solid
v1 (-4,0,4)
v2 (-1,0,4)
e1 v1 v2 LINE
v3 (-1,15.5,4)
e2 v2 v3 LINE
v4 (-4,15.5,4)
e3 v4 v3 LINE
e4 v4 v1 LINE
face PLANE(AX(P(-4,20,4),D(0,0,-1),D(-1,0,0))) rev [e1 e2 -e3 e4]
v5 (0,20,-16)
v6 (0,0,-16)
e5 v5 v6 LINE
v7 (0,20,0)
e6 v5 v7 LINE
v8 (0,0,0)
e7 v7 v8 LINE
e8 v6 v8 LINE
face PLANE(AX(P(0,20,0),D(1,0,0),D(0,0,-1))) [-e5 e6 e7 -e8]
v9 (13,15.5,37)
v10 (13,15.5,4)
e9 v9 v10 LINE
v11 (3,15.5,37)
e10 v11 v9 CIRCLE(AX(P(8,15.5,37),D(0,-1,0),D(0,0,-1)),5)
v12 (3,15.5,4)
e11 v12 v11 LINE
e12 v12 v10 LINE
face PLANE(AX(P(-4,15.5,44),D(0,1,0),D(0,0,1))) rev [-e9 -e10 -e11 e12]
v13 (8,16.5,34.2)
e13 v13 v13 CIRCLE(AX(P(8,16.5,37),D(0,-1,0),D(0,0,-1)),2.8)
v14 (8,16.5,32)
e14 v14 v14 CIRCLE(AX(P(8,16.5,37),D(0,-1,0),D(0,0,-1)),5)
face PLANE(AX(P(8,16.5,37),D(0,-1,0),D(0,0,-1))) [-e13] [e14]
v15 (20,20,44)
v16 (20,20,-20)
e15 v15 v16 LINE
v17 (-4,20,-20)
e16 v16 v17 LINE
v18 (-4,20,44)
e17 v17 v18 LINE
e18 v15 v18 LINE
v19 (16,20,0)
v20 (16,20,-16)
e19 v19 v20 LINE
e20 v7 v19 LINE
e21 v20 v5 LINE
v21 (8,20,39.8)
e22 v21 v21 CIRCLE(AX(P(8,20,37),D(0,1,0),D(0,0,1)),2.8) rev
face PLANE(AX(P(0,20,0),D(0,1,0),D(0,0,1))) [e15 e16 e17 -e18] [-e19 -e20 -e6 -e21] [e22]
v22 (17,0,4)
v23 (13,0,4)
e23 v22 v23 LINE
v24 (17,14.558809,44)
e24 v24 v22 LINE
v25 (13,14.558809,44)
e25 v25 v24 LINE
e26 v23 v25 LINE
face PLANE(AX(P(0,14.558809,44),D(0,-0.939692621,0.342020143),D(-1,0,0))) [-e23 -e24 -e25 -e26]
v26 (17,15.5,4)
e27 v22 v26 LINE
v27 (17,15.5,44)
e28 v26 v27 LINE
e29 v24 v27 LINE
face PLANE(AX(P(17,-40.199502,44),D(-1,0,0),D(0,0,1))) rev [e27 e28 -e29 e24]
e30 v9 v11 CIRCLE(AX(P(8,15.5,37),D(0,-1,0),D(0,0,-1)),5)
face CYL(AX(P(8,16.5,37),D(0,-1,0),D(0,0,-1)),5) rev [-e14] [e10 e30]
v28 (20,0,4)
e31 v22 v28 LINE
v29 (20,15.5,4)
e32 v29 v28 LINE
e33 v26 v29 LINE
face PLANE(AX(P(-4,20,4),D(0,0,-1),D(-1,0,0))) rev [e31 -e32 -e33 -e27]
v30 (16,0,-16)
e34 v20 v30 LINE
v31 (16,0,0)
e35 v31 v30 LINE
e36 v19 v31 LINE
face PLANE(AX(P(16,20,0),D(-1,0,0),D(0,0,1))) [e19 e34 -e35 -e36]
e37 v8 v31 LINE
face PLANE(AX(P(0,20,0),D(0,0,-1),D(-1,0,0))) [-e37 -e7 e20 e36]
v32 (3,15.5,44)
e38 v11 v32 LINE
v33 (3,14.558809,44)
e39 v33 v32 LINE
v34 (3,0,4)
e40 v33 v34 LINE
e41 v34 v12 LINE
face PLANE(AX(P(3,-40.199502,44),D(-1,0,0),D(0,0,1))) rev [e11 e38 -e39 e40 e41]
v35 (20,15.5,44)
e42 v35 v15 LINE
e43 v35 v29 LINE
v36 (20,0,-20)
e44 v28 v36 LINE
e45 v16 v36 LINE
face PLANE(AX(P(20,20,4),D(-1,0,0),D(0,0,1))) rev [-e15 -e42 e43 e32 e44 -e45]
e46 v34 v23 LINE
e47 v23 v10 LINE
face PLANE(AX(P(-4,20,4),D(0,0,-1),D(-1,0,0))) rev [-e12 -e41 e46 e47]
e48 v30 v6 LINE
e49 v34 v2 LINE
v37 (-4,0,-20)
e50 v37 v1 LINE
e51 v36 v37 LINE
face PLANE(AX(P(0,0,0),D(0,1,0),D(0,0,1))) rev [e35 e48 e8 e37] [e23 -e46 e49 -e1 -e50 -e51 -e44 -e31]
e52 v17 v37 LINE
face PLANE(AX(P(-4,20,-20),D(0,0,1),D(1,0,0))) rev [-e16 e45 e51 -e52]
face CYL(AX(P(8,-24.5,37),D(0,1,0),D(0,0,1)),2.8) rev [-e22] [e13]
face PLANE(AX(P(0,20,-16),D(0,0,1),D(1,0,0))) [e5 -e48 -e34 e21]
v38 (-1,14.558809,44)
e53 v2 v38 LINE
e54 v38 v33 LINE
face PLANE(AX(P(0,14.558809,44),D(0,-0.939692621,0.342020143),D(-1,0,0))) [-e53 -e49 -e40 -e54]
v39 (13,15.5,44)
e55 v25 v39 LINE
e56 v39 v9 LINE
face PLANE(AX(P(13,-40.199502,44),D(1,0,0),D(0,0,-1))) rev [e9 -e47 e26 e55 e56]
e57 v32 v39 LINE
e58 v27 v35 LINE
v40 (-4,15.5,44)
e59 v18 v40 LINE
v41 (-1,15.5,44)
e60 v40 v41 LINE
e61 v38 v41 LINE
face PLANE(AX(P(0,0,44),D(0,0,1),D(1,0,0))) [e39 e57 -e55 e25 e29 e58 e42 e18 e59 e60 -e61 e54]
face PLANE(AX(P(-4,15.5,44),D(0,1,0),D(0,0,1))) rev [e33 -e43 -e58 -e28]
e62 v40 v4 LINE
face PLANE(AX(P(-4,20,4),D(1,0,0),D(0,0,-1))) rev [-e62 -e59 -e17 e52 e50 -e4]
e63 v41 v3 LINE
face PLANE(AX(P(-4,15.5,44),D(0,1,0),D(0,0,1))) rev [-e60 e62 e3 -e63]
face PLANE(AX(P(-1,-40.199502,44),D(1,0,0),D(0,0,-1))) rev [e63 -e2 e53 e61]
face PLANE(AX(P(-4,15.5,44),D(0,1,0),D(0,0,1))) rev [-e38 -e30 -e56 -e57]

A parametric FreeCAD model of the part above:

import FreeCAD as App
import Part
import Sketcher
from FreeCAD import Vector
Q = App.Units.Quantity


def edges_at(feature, points):
    """Names of the edges that pass closest to the given points."""
    edges = feature.Shape.Edges
    near = lambda p: min(range(len(edges)), key=lambda i: edges[i].distToShape(Part.Vertex(*p))[0])
    return sorted({f"Edge{near(p) + 1}" for p in points})


def add_polygon(sketch, points):
    """Adds a closed chain of lines whose ends are joined by coincident constraints."""
    first, n = sketch.GeometryCount, len(points)
    for a, b in zip(points, points[1:] + points[:1]):
        sketch.addGeometry(Part.LineSegment(App.Vector(*a, 0), App.Vector(*b, 0)), False)
    for i in range(n):
        sketch.addConstraint(Sketcher.Constraint("Coincident", first + i, 2, first + (i + 1) % n, 1))

doc = App.newDocument("Part")
body = doc.addObject("PartDesign::Body", "Body")

# Sketch on XZ plane
sketch1 = body.newObject("Sketcher::SketchObject", "Sketch")
sketch1.AttachmentSupport = (doc.getObject("XZ_Plane"), [""])
sketch1.MapMode = "FlatFace"
add_polygon(sketch1, [(-4, -20), (-4, 4), (20, 4), (20, -20)])  # lines 0-3
add_polygon(sketch1, [(16, 0), (0, 0), (0, -16), (16, -16)])  # lines 4-7
sketch1.addConstraint([
    Sketcher.Constraint("Vertical", 0),
    Sketcher.Constraint("Horizontal", 1),
    Sketcher.Constraint("Vertical", 2),
    Sketcher.Constraint("Horizontal", 3),
    Sketcher.Constraint("Horizontal", 4),
    Sketcher.Constraint("Vertical", 5),
    Sketcher.Constraint("Horizontal", 6),
    Sketcher.Constraint("Vertical", 7),
    Sketcher.Constraint("Coincident", 4, 2, -1, 1),
    Sketcher.Constraint("Equal", 3, 0),
    Sketcher.Constraint("Equal", 6, 5),
    Sketcher.Constraint("DistanceX", 1, 1, 1, 2, Q("24 mm")),
    Sketcher.Constraint("DistanceX", 4, 2, 4, 1, Q("16 mm")),
    Sketcher.Constraint("DistanceX", 0, 2, -1, 1, Q("4 mm")),
    Sketcher.Constraint("DistanceY", -1, 1, 0, 2, Q("4 mm")),
])
pad1 = body.newObject("PartDesign::Pad", "Pad")
pad1.Profile = sketch1
pad1.Length = 20
pad1.Reversed = True

# Sketch on XY plane
sketch2 = body.newObject("Sketcher::SketchObject", "Sketch001")
sketch2.AttachmentSupport = (doc.getObject("XY_Plane"), [""])
sketch2.MapMode = "FlatFace"
sketch2.AttachmentOffset = App.Placement(Vector(0, 0, 4), App.Rotation())
add_polygon(sketch2, [(-4, 20), (-4, 15.5), (20, 15.5), (20, 20)])  # lines 0-3
sketch2.addConstraint([
    Sketcher.Constraint("Vertical", 0),
    Sketcher.Constraint("Horizontal", 1),
    Sketcher.Constraint("Vertical", 2),
    Sketcher.Constraint("Horizontal", 3),
    Sketcher.Constraint("DistanceX", 1, 1, 1, 2, Q("24 mm")),
    Sketcher.Constraint("DistanceY", 0, 2, 0, 1, Q("4.5 mm")),
    Sketcher.Constraint("DistanceX", 0, 2, -1, 1, Q("4 mm")),
    Sketcher.Constraint("DistanceY", -1, 1, 2, 2, Q("20 mm")),
])
pad2 = body.newObject("PartDesign::Pad", "Pad001")
pad2.Profile = sketch2
pad2.Length = 40

# Sketch on XZ plane
sketch3 = body.newObject("Sketcher::SketchObject", "Sketch002")
sketch3.AttachmentSupport = (doc.getObject("XZ_Plane"), [""])
sketch3.MapMode = "FlatFace"
sketch3.AttachmentOffset = App.Placement(Vector(0, 0, -15.5), App.Rotation())
sketch3.addGeometry(Part.Circle(Vector(8, 37, 0), Vector(0, 0, 1), 2.8), False)
sketch3.addConstraint([
    Sketcher.Constraint("Diameter", 0, Q("5.6 mm")),
    Sketcher.Constraint("DistanceX", -1, 1, 0, 3, Q("8 mm")),
    Sketcher.Constraint("DistanceY", -1, 1, 0, 3, Q("37 mm")),
])
pocket1 = body.newObject("PartDesign::Pocket", "Pocket")
pocket1.Profile = sketch3
pocket1.Type = "ThroughAll"
pocket1.Midplane = True

# Sketch on XZ plane
sketch4 = body.newObject("Sketcher::SketchObject", "Sketch003")
sketch4.AttachmentSupport = (doc.getObject("XZ_Plane"), [""])
sketch4.MapMode = "FlatFace"
sketch4.AttachmentOffset = App.Placement(Vector(0, 0, -15.5), App.Rotation())
add_polygon(sketch4, [(3, 4), (3, 44), (-1, 44), (-1, 4)])  # lines 0-3
add_polygon(sketch4, [(17, 4), (17, 44), (13, 44), (13, 4)])  # lines 4-7
sketch4.addConstraint([
    Sketcher.Constraint("Vertical", 0),
    Sketcher.Constraint("Horizontal", 1),
    Sketcher.Constraint("Vertical", 2),
    Sketcher.Constraint("Horizontal", 3),
    Sketcher.Constraint("Vertical", 4),
    Sketcher.Constraint("Horizontal", 5),
    Sketcher.Constraint("Vertical", 6),
    Sketcher.Constraint("Horizontal", 7),
    Sketcher.Constraint("Horizontal", 1, 2, 4, 2),
    Sketcher.Constraint("Horizontal", 3, 2, 6, 2),
    Sketcher.Constraint("Equal", 3, 5),
    Sketcher.Constraint("DistanceX", 1, 2, 1, 1, Q("4 mm")),
    Sketcher.Constraint("DistanceY", 0, 1, 0, 2, Q("40 mm")),
    Sketcher.Constraint("DistanceX", -1, 1, 0, 2, Q("3 mm")),
    Sketcher.Constraint("DistanceY", -1, 1, 0, 2, Q("44 mm")),
    Sketcher.Constraint("DistanceX", -1, 1, 4, 2, Q("17 mm")),
])
pad3 = body.newObject("PartDesign::Pad", "Pad002")
pad3.Profile = sketch4
pad3.Length = 15.5
doc.recompute()

chamfer = body.newObject("PartDesign::Chamfer", "Chamfer")
chamfer.Base = (pad3, edges_at(pad3, [(1, 0, 44), (15, 0, 44)]))
chamfer.ChamferType = "Two distances"
chamfer.Size = 40
chamfer.Size2 = 14.558809

# Sketch on XZ plane
sketch5 = body.newObject("Sketcher::SketchObject", "Sketch004")
sketch5.AttachmentSupport = (doc.getObject("XZ_Plane"), [""])
sketch5.MapMode = "FlatFace"
sketch5.AttachmentOffset = App.Placement(Vector(0, 0, -15.5), App.Rotation())
sketch5.addGeometry(Part.Circle(Vector(8, 37, 0), Vector(0, 0, 1), 5), False)
sketch5.addConstraint([
    Sketcher.Constraint("Diameter", 0, Q("10 mm")),
    Sketcher.Constraint("DistanceX", -1, 1, 0, 3, Q("8 mm")),
    Sketcher.Constraint("DistanceY", -1, 1, 0, 3, Q("37 mm")),
])
pocket2 = body.newObject("PartDesign::Pocket", "Pocket001")
pocket2.Profile = sketch5
pocket2.Length = 1

doc.recompute()
